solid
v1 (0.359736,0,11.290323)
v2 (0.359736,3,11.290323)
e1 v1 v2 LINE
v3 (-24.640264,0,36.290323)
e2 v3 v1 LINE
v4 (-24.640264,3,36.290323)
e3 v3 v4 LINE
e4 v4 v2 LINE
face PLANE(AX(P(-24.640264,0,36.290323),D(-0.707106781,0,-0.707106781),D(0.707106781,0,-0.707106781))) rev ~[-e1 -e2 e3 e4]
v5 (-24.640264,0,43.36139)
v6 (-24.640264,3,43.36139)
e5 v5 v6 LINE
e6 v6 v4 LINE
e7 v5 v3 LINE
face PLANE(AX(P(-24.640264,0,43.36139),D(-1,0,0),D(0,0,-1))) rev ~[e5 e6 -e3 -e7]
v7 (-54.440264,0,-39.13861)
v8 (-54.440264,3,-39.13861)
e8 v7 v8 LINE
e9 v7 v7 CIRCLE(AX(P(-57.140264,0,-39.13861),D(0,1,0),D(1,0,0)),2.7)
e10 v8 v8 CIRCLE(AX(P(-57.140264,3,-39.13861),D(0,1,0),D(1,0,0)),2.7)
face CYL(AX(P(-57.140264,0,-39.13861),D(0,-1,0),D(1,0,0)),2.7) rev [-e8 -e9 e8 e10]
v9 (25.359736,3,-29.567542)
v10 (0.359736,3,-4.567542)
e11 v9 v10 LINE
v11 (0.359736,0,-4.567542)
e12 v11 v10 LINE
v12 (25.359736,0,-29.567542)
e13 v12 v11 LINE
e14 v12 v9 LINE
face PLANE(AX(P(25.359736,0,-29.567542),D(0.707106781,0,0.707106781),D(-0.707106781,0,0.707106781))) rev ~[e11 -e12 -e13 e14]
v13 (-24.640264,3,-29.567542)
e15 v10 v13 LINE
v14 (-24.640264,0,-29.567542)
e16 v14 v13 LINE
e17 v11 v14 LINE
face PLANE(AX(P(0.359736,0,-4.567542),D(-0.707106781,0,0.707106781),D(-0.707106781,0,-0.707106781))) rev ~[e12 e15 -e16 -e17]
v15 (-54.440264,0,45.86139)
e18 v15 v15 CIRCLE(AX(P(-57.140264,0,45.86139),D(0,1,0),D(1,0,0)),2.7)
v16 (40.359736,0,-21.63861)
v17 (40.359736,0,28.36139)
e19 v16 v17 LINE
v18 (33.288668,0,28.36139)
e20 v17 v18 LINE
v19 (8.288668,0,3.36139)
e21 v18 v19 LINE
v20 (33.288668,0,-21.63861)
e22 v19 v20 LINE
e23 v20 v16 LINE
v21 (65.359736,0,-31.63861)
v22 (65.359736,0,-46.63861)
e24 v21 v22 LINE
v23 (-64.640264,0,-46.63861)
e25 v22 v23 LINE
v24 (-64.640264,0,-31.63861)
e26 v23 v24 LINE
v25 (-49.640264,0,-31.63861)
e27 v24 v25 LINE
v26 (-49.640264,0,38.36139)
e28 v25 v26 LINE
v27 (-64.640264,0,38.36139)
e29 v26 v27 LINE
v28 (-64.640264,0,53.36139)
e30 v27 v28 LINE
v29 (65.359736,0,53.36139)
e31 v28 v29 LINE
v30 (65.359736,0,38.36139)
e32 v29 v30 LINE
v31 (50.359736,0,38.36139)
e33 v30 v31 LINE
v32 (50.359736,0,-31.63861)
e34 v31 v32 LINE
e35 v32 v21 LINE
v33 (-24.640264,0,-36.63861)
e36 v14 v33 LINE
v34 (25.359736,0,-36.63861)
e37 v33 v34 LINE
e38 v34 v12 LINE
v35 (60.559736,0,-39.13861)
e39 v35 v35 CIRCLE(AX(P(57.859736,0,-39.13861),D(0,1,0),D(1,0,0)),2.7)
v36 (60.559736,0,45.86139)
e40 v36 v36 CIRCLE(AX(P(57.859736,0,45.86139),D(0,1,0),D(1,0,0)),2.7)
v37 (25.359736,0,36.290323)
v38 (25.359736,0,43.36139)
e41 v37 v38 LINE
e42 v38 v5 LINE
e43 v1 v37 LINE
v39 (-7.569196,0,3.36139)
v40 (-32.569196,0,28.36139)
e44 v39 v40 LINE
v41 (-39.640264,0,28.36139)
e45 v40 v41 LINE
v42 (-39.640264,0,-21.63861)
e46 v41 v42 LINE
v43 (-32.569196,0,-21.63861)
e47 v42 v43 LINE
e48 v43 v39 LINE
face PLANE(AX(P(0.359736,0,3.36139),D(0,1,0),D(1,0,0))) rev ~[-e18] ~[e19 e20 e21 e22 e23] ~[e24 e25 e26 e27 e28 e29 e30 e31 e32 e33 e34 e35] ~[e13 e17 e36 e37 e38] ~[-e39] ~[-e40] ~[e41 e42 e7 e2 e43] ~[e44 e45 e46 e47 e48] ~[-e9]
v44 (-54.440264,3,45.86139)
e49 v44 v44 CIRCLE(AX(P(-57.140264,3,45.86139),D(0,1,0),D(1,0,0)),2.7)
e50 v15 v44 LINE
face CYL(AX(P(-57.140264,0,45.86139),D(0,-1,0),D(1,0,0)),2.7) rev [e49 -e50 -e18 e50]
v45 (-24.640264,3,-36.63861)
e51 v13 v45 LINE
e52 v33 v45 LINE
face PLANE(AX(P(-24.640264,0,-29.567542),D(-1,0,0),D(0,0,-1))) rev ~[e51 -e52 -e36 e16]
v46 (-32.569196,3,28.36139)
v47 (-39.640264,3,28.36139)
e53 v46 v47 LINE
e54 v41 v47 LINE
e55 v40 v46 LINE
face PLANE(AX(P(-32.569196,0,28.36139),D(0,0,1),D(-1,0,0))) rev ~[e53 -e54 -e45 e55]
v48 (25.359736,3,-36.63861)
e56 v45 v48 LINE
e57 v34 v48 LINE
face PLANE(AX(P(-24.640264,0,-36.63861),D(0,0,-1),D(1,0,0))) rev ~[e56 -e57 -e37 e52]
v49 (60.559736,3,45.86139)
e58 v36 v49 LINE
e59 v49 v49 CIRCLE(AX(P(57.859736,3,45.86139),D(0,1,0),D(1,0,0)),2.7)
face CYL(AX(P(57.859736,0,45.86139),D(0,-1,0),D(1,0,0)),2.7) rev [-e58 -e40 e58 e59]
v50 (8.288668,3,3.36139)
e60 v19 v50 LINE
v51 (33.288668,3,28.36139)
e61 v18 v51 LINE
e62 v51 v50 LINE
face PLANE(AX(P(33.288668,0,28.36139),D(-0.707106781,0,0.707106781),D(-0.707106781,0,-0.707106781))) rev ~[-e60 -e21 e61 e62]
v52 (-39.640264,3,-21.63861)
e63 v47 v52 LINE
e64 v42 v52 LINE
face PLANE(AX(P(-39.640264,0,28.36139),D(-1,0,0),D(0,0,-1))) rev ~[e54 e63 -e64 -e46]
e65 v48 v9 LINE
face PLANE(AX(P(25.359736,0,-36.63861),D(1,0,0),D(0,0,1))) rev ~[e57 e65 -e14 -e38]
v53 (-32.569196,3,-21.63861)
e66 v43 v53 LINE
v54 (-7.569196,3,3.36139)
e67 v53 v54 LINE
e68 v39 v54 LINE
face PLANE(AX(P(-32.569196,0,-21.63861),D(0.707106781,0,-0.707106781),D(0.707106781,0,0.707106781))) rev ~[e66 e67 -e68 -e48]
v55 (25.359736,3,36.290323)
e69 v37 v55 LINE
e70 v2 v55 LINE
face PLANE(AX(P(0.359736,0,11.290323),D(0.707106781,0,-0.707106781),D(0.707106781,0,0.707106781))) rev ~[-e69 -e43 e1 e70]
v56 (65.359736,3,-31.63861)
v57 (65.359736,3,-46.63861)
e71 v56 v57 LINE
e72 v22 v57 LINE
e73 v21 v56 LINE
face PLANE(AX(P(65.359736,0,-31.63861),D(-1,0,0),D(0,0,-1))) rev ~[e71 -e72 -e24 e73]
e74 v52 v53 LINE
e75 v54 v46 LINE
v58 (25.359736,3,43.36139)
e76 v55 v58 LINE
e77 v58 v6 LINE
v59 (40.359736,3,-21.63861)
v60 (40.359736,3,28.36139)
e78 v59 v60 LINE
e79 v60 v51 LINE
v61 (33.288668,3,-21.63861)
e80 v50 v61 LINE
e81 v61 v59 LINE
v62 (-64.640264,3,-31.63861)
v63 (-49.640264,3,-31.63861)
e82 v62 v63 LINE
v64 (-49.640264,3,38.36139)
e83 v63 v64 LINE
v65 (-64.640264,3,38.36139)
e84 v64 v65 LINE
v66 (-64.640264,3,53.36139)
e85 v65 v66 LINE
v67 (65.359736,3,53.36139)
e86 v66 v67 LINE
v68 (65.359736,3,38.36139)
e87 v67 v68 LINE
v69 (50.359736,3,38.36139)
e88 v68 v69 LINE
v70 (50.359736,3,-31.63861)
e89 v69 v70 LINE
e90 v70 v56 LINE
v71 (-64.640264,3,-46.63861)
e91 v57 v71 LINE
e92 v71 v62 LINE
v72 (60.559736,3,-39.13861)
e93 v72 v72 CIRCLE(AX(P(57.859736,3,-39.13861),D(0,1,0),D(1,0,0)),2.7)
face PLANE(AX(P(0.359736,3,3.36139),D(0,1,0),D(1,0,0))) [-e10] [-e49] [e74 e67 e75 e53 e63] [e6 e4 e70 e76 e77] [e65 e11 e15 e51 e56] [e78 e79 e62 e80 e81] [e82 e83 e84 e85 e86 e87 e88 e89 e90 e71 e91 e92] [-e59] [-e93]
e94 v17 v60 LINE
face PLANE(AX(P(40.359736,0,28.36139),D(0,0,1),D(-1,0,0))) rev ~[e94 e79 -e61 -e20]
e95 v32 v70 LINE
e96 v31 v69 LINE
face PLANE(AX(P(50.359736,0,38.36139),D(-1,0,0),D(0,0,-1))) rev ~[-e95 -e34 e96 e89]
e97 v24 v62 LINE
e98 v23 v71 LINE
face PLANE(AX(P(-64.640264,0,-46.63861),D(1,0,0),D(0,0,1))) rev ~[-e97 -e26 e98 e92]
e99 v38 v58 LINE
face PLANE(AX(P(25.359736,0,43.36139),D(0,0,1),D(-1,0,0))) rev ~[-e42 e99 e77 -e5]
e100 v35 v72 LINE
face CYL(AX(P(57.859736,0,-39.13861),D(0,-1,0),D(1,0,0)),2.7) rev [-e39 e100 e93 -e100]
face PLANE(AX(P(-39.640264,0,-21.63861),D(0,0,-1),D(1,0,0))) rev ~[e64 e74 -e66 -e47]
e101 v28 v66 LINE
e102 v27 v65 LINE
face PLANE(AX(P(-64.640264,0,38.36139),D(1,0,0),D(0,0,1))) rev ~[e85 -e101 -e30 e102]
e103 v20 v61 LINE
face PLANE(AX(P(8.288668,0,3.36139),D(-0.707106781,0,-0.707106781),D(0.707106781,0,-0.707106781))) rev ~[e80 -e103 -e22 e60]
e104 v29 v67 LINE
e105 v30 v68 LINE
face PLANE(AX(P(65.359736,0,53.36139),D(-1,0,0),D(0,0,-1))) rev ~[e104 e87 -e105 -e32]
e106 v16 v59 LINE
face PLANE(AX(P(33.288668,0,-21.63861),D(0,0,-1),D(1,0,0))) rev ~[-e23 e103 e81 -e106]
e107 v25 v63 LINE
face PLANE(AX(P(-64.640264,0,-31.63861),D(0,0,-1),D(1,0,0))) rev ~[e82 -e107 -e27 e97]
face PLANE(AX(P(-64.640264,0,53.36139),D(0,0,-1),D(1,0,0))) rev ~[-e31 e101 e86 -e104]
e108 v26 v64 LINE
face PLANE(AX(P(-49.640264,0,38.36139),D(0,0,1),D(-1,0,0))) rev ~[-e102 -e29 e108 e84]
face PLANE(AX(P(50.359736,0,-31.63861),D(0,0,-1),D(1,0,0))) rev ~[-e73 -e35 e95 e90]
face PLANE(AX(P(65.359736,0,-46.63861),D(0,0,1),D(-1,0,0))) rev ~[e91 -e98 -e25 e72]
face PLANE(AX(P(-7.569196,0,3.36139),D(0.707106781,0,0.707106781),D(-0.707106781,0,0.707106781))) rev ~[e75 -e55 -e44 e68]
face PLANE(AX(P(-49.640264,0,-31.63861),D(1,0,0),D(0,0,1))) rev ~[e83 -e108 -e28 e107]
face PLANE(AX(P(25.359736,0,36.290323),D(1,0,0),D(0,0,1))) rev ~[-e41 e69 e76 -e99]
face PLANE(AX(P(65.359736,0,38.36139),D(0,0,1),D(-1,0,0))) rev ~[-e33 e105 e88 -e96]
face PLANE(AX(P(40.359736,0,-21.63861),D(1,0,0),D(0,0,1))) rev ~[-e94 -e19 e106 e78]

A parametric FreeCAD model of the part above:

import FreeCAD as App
import Part
import Sketcher
from FreeCAD import Vector

doc = App.newDocument("Part")
body = doc.addObject("PartDesign::Body", "Body")

# Sketch on XZ plane
sketch1 = body.newObject("Sketcher::SketchObject", "Sketch")
sketch1.AttachmentSupport = (doc.getObject("XZ_Plane"), [""])
sketch1.MapMode = "FlatFace"
sketch1.addGeometry(Part.LineSegment(Vector(-64.6, -46.6, 0), Vector(-64.6, -31.6, 0)), False)
sketch1.addGeometry(Part.LineSegment(Vector(-64.6, -31.6, 0), Vector(-49.6, -31.6, 0)), False)
sketch1.addGeometry(Part.LineSegment(Vector(-49.6, -31.6, 0), Vector(-49.6, 38.4, 0)), False)
sketch1.addGeometry(Part.LineSegment(Vector(-49.6, 38.4, 0), Vector(-64.6, 38.4, 0)), False)
sketch1.addGeometry(Part.LineSegment(Vector(-64.6, 38.4, 0), Vector(-64.6, 53.4, 0)), False)
sketch1.addGeometry(Part.LineSegment(Vector(-64.6, 53.4, 0), Vector(65.4, 53.4, 0)), False)
sketch1.addGeometry(Part.LineSegment(Vector(65.4, 53.4, 0), Vector(65.4, 38.4, 0)), False)
sketch1.addGeometry(Part.LineSegment(Vector(65.4, 38.4, 0), Vector(50.4, 38.4, 0)), False)
sketch1.addGeometry(Part.LineSegment(Vector(50.4, 38.4, 0), Vector(50.4, -31.6, 0)), False)
sketch1.addGeometry(Part.LineSegment(Vector(50.4, -31.6, 0), Vector(65.4, -31.6, 0)), False)
sketch1.addGeometry(Part.LineSegment(Vector(65.4, -31.6, 0), Vector(65.4, -46.6, 0)), False)
sketch1.addGeometry(Part.LineSegment(Vector(65.4, -46.6, 0), Vector(-64.6, -46.6, 0)), False)
sketch1.addGeometry(Part.Circle(Vector(-57.1, 45.9, 0), Vector(0, 0, 1), 2.7), False)
sketch1.addGeometry(Part.LineSegment(Vector(25.4, 36.3, 0), Vector(25.4, 43.4, 0)), False)
sketch1.addGeometry(Part.LineSegment(Vector(25.4, 43.4, 0), Vector(-24.6, 43.4, 0)), False)
sketch1.addGeometry(Part.LineSegment(Vector(-24.6, 43.4, 0), Vector(-24.6, 36.3, 0)), False)
sketch1.addGeometry(Part.LineSegment(Vector(-24.6, 36.3, 0), Vector(0.4, 11.3, 0)), False)
sketch1.addGeometry(Part.LineSegment(Vector(0.4, 11.3, 0), Vector(25.4, 36.3, 0)), False)
sketch1.addGeometry(Part.LineSegment(Vector(-32.6, 28.4, 0), Vector(-39.6, 28.4, 0)), False)
sketch1.addGeometry(Part.LineSegment(Vector(-39.6, 28.4, 0), Vector(-39.6, -21.6, 0)), False)
sketch1.addGeometry(Part.LineSegment(Vector(-39.6, -21.6, 0), Vector(-32.6, -21.6, 0)), False)
sketch1.addGeometry(Part.LineSegment(Vector(-32.6, -21.6, 0), Vector(-7.6, 3.4, 0)), False)
sketch1.addGeometry(Part.LineSegment(Vector(-7.6, 3.4, 0), Vector(-32.6, 28.4, 0)), False)
sketch1.addGeometry(Part.Circle(Vector(57.9, 45.9, 0), Vector(0, 0, 1), 2.7), False)
sketch1.addGeometry(Part.Circle(Vector(-57.1, -39.1, 0), Vector(0, 0, 1), 2.7), False)
sketch1.addGeometry(Part.LineSegment(Vector(0.4, -4.6, 0), Vector(-24.6, -29.6, 0)), False)
sketch1.addGeometry(Part.LineSegment(Vector(-24.6, -29.6, 0), Vector(-24.6, -36.6, 0)), False)
sketch1.addGeometry(Part.LineSegment(Vector(-24.6, -36.6, 0), Vector(25.4, -36.6, 0)), False)
sketch1.addGeometry(Part.LineSegment(Vector(25.4, -36.6, 0), Vector(25.4, -29.6, 0)), False)
sketch1.addGeometry(Part.LineSegment(Vector(25.4, -29.6, 0), Vector(0.4, -4.6, 0)), False)
sketch1.addGeometry(Part.LineSegment(Vector(8.3, 3.4, 0), Vector(33.3, -21.6, 0)), False)
sketch1.addGeometry(Part.LineSegment(Vector(33.3, -21.6, 0), Vector(40.4, -21.6, 0)), False)
sketch1.addGeometry(Part.LineSegment(Vector(40.4, -21.6, 0), Vector(40.4, 28.4, 0)), False)
sketch1.addGeometry(Part.LineSegment(Vector(40.4, 28.4, 0), Vector(33.3, 28.4, 0)), False)
sketch1.addGeometry(Part.LineSegment(Vector(33.3, 28.4, 0), Vector(8.3, 3.4, 0)), False)
sketch1.addGeometry(Part.Circle(Vector(57.9, -39.1, 0), Vector(0, 0, 1), 2.7), False)
sketch1.addConstraint(Sketcher.Constraint("Coincident", 0, 2, 1, 1))
sketch1.addConstraint(Sketcher.Constraint("Coincident", 1, 2, 2, 1))
sketch1.addConstraint(Sketcher.Constraint("Coincident", 2, 2, 3, 1))
sketch1.addConstraint(Sketcher.Constraint("Coincident", 3, 2, 4, 1))
sketch1.addConstraint(Sketcher.Constraint("Coincident", 4, 2, 5, 1))
sketch1.addConstraint(Sketcher.Constraint("Coincident", 5, 2, 6, 1))
sketch1.addConstraint(Sketcher.Constraint("Coincident", 6, 2, 7, 1))
sketch1.addConstraint(Sketcher.Constraint("Coincident", 7, 2, 8, 1))
sketch1.addConstraint(Sketcher.Constraint("Coincident", 8, 2, 9, 1))
sketch1.addConstraint(Sketcher.Constraint("Coincident", 9, 2, 10, 1))
sketch1.addConstraint(Sketcher.Constraint("Coincident", 10, 2, 11, 1))
sketch1.addConstraint(Sketcher.Constraint("Coincident", 11, 2, 0, 1))
sketch1.addConstraint(Sketcher.Constraint("Coincident", 13, 2, 14, 1))
sketch1.addConstraint(Sketcher.Constraint("Coincident", 14, 2, 15, 1))
sketch1.addConstraint(Sketcher.Constraint("Coincident", 15, 2, 16, 1))
sketch1.addConstraint(Sketcher.Constraint("Coincident", 16, 2, 17, 1))
sketch1.addConstraint(Sketcher.Constraint("Coincident", 17, 2, 13, 1))
sketch1.addConstraint(Sketcher.Constraint("Coincident", 18, 2, 19, 1))
sketch1.addConstraint(Sketcher.Constraint("Coincident", 19, 2, 20, 1))
sketch1.addConstraint(Sketcher.Constraint("Coincident", 20, 2, 21, 1))
sketch1.addConstraint(Sketcher.Constraint("Coincident", 21, 2, 22, 1))
sketch1.addConstraint(Sketcher.Constraint("Coincident", 22, 2, 18, 1))
sketch1.addConstraint(Sketcher.Constraint("Coincident", 25, 2, 26, 1))
sketch1.addConstraint(Sketcher.Constraint("Coincident", 26, 2, 27, 1))
sketch1.addConstraint(Sketcher.Constraint("Coincident", 27, 2, 28, 1))
sketch1.addConstraint(Sketcher.Constraint("Coincident", 28, 2, 29, 1))
sketch1.addConstraint(Sketcher.Constraint("Coincident", 29, 2, 25, 1))
sketch1.addConstraint(Sketcher.Constraint("Coincident", 30, 2, 31, 1))
sketch1.addConstraint(Sketcher.Constraint("Coincident", 31, 2, 32, 1))
sketch1.addConstraint(Sketcher.Constraint("Coincident", 32, 2, 33, 1))
sketch1.addConstraint(Sketcher.Constraint("Coincident", 33, 2, 34, 1))
sketch1.addConstraint(Sketcher.Constraint("Coincident", 34, 2, 30, 1))
sketch1.addConstraint(Sketcher.Constraint("Vertical", 0))
sketch1.addConstraint(Sketcher.Constraint("Horizontal", 1))
sketch1.addConstraint(Sketcher.Constraint("Vertical", 2))
sketch1.addConstraint(Sketcher.Constraint("Horizontal", 3))
sketch1.addConstraint(Sketcher.Constraint("Vertical", 4))
sketch1.addConstraint(Sketcher.Constraint("Horizontal", 5))
sketch1.addConstraint(Sketcher.Constraint("Vertical", 6))
sketch1.addConstraint(Sketcher.Constraint("Horizontal", 7))
sketch1.addConstraint(Sketcher.Constraint("Vertical", 8))
sketch1.addConstraint(Sketcher.Constraint("Horizontal", 9))
sketch1.addConstraint(Sketcher.Constraint("Vertical", 10))
sketch1.addConstraint(Sketcher.Constraint("Horizontal", 11))
sketch1.addConstraint(Sketcher.Constraint("Vertical", 13))
sketch1.addConstraint(Sketcher.Constraint("Horizontal", 14))
sketch1.addConstraint(Sketcher.Constraint("Vertical", 15))
sketch1.addConstraint(Sketcher.Constraint("Horizontal", 18))
sketch1.addConstraint(Sketcher.Constraint("Vertical", 19))
sketch1.addConstraint(Sketcher.Constraint("Horizontal", 20))
sketch1.addConstraint(Sketcher.Constraint("Vertical", 26))
sketch1.addConstraint(Sketcher.Constraint("Horizontal", 27))
sketch1.addConstraint(Sketcher.Constraint("Vertical", 28))
sketch1.addConstraint(Sketcher.Constraint("Horizontal", 31))
sketch1.addConstraint(Sketcher.Constraint("Vertical", 32))
sketch1.addConstraint(Sketcher.Constraint("Horizontal", 33))
sketch1.addConstraint(Sketcher.Constraint("Equal", 12, 23))
sketch1.addConstraint(Sketcher.Constraint("Equal", 23, 24))
sketch1.addConstraint(Sketcher.Constraint("Equal", 24, 35))
sketch1.addConstraint(Sketcher.Constraint("Perpendicular", 16, 17))
sketch1.addConstraint(Sketcher.Constraint("Parallel", 17, 21))
sketch1.addConstraint(Sketcher.Constraint("Perpendicular", 21, 22))
sketch1.addConstraint(Sketcher.Constraint("Perpendicular", 22, 25))
sketch1.addConstraint(Sketcher.Constraint("Perpendicular", 25, 29))
sketch1.addConstraint(Sketcher.Constraint("Parallel", 29, 30))
sketch1.addConstraint(Sketcher.Constraint("Perpendicular", 30, 34))
sketch1.addConstraint(Sketcher.Constraint("Horizontal", 12, 3, 23, 3))
sketch1.addConstraint(Sketcher.Constraint("Horizontal", 24, 3, 35, 3))
sketch1.addConstraint(Sketcher.Constraint("Horizontal", 3, 2, 6, 2))
sketch1.addConstraint(Sketcher.Constraint("Horizontal", 1, 2, 8, 2))
sketch1.addConstraint(Sketcher.Constraint("Horizontal", 15, 2, 17, 2))
sketch1.addConstraint(Sketcher.Constraint("Horizontal", 25, 2, 28, 2))
sketch1.addConstraint(Sketcher.Constraint("Horizontal", 20, 2, 30, 2))
sketch1.addConstraint(Sketcher.Constraint("Horizontal", 22, 2, 32, 2))
sketch1.addConstraint(Sketcher.Constraint("Horizontal", 21, 2, 34, 2))
sketch1.addConstraint(Sketcher.Constraint("Vertical", 12, 3, 24, 3))
sketch1.addConstraint(Sketcher.Constraint("Vertical", 23, 3, 35, 3))
sketch1.addConstraint(Sketcher.Constraint("Vertical", 0, 2, 3, 2))
sketch1.addConstraint(Sketcher.Constraint("Vertical", 6, 2, 9, 2))
sketch1.addConstraint(Sketcher.Constraint("Vertical", 20, 2, 22, 2))
sketch1.addConstraint(Sketcher.Constraint("Vertical", 15, 2, 25, 2))
sketch1.addConstraint(Sketcher.Constraint("Vertical", 17, 2, 27, 2))
sketch1.addConstraint(Sketcher.Constraint("Vertical", 16, 2, 29, 2))
sketch1.addConstraint(Sketcher.Constraint("Equal", 3, 7))
sketch1.addConstraint(Sketcher.Constraint("Equal", 20, 31))
sketch1.addConstraint(Sketcher.Constraint("Equal", 9, 0))
sketch1.addConstraint(Sketcher.Constraint("Equal", 0, 4))
sketch1.addConstraint(Sketcher.Constraint("Equal", 33, 13))
sketch1.addConstraint(Sketcher.Constraint("Equal", 27, 19))
sketch1.addConstraint(Sketcher.Constraint("Equal", 15, 26))
sketch1.addConstraint(Sketcher.Constraint("Diameter", 12, 5.4))
sketch1.addConstraint(Sketcher.Constraint("DistanceX", 1, 1, 1, 2, 15.0))
sketch1.addConstraint(Sketcher.Constraint("DistanceX", 5, 1, 5, 2, 130.0))
sketch1.addConstraint(Sketcher.Constraint("DistanceX", 14, 2, 14, 1, 50.0))
sketch1.addConstraint(Sketcher.Constraint("DistanceY", 2, 1, 2, 2, 70.0))
sketch1.addConstraint(Sketcher.Constraint("DistanceX", 12, 3, 23, 3, 115.0))
sketch1.addConstraint(Sketcher.Constraint("DistanceY", 24, 3, 12, 3, 85.0))
sketch1.addConstraint(Sketcher.Constraint("DistanceX", 13, 2, 7, 2, 25.0))
sketch1.addConstraint(Sketcher.Constraint("DistanceY", 7, 2, 13, 2, 5.0))
sketch1.addConstraint(Sketcher.Constraint("DistanceX", 2, 2, 18, 2, 10.0))
sketch1.addConstraint(Sketcher.Constraint("DistanceY", 18, 2, 2, 2, 10.0))
sketch1.addConstraint(Sketcher.Constraint("DistanceY", 26, 2, 20, 2, 15.0))
sketch1.addConstraint(Sketcher.Constraint("DistanceX", 31, 2, 8, 2, 10.0))
sketch1.addConstraint(Sketcher.Constraint("DistanceX", 0, 2, 24, 3, 7.5))
sketch1.addConstraint(Sketcher.Constraint("DistanceY", 24, 3, 0, 2, 7.5))
sketch1.addConstraint(Sketcher.Constraint("DistanceX", 18, 2, 18, 1, 7.071068))
sketch1.addConstraint(Sketcher.Constraint("DistanceY", -1, 1, 12, 3, 45.86139))
sketch1.addConstraint(Sketcher.Constraint("DistanceX", -1, 1, 30, 2, 33.288668))
pad1 = body.newObject("PartDesign::Pad", "Pad")
pad1.Profile = sketch1
pad1.Length = 3
pad1.Reversed = True

doc.recompute()
